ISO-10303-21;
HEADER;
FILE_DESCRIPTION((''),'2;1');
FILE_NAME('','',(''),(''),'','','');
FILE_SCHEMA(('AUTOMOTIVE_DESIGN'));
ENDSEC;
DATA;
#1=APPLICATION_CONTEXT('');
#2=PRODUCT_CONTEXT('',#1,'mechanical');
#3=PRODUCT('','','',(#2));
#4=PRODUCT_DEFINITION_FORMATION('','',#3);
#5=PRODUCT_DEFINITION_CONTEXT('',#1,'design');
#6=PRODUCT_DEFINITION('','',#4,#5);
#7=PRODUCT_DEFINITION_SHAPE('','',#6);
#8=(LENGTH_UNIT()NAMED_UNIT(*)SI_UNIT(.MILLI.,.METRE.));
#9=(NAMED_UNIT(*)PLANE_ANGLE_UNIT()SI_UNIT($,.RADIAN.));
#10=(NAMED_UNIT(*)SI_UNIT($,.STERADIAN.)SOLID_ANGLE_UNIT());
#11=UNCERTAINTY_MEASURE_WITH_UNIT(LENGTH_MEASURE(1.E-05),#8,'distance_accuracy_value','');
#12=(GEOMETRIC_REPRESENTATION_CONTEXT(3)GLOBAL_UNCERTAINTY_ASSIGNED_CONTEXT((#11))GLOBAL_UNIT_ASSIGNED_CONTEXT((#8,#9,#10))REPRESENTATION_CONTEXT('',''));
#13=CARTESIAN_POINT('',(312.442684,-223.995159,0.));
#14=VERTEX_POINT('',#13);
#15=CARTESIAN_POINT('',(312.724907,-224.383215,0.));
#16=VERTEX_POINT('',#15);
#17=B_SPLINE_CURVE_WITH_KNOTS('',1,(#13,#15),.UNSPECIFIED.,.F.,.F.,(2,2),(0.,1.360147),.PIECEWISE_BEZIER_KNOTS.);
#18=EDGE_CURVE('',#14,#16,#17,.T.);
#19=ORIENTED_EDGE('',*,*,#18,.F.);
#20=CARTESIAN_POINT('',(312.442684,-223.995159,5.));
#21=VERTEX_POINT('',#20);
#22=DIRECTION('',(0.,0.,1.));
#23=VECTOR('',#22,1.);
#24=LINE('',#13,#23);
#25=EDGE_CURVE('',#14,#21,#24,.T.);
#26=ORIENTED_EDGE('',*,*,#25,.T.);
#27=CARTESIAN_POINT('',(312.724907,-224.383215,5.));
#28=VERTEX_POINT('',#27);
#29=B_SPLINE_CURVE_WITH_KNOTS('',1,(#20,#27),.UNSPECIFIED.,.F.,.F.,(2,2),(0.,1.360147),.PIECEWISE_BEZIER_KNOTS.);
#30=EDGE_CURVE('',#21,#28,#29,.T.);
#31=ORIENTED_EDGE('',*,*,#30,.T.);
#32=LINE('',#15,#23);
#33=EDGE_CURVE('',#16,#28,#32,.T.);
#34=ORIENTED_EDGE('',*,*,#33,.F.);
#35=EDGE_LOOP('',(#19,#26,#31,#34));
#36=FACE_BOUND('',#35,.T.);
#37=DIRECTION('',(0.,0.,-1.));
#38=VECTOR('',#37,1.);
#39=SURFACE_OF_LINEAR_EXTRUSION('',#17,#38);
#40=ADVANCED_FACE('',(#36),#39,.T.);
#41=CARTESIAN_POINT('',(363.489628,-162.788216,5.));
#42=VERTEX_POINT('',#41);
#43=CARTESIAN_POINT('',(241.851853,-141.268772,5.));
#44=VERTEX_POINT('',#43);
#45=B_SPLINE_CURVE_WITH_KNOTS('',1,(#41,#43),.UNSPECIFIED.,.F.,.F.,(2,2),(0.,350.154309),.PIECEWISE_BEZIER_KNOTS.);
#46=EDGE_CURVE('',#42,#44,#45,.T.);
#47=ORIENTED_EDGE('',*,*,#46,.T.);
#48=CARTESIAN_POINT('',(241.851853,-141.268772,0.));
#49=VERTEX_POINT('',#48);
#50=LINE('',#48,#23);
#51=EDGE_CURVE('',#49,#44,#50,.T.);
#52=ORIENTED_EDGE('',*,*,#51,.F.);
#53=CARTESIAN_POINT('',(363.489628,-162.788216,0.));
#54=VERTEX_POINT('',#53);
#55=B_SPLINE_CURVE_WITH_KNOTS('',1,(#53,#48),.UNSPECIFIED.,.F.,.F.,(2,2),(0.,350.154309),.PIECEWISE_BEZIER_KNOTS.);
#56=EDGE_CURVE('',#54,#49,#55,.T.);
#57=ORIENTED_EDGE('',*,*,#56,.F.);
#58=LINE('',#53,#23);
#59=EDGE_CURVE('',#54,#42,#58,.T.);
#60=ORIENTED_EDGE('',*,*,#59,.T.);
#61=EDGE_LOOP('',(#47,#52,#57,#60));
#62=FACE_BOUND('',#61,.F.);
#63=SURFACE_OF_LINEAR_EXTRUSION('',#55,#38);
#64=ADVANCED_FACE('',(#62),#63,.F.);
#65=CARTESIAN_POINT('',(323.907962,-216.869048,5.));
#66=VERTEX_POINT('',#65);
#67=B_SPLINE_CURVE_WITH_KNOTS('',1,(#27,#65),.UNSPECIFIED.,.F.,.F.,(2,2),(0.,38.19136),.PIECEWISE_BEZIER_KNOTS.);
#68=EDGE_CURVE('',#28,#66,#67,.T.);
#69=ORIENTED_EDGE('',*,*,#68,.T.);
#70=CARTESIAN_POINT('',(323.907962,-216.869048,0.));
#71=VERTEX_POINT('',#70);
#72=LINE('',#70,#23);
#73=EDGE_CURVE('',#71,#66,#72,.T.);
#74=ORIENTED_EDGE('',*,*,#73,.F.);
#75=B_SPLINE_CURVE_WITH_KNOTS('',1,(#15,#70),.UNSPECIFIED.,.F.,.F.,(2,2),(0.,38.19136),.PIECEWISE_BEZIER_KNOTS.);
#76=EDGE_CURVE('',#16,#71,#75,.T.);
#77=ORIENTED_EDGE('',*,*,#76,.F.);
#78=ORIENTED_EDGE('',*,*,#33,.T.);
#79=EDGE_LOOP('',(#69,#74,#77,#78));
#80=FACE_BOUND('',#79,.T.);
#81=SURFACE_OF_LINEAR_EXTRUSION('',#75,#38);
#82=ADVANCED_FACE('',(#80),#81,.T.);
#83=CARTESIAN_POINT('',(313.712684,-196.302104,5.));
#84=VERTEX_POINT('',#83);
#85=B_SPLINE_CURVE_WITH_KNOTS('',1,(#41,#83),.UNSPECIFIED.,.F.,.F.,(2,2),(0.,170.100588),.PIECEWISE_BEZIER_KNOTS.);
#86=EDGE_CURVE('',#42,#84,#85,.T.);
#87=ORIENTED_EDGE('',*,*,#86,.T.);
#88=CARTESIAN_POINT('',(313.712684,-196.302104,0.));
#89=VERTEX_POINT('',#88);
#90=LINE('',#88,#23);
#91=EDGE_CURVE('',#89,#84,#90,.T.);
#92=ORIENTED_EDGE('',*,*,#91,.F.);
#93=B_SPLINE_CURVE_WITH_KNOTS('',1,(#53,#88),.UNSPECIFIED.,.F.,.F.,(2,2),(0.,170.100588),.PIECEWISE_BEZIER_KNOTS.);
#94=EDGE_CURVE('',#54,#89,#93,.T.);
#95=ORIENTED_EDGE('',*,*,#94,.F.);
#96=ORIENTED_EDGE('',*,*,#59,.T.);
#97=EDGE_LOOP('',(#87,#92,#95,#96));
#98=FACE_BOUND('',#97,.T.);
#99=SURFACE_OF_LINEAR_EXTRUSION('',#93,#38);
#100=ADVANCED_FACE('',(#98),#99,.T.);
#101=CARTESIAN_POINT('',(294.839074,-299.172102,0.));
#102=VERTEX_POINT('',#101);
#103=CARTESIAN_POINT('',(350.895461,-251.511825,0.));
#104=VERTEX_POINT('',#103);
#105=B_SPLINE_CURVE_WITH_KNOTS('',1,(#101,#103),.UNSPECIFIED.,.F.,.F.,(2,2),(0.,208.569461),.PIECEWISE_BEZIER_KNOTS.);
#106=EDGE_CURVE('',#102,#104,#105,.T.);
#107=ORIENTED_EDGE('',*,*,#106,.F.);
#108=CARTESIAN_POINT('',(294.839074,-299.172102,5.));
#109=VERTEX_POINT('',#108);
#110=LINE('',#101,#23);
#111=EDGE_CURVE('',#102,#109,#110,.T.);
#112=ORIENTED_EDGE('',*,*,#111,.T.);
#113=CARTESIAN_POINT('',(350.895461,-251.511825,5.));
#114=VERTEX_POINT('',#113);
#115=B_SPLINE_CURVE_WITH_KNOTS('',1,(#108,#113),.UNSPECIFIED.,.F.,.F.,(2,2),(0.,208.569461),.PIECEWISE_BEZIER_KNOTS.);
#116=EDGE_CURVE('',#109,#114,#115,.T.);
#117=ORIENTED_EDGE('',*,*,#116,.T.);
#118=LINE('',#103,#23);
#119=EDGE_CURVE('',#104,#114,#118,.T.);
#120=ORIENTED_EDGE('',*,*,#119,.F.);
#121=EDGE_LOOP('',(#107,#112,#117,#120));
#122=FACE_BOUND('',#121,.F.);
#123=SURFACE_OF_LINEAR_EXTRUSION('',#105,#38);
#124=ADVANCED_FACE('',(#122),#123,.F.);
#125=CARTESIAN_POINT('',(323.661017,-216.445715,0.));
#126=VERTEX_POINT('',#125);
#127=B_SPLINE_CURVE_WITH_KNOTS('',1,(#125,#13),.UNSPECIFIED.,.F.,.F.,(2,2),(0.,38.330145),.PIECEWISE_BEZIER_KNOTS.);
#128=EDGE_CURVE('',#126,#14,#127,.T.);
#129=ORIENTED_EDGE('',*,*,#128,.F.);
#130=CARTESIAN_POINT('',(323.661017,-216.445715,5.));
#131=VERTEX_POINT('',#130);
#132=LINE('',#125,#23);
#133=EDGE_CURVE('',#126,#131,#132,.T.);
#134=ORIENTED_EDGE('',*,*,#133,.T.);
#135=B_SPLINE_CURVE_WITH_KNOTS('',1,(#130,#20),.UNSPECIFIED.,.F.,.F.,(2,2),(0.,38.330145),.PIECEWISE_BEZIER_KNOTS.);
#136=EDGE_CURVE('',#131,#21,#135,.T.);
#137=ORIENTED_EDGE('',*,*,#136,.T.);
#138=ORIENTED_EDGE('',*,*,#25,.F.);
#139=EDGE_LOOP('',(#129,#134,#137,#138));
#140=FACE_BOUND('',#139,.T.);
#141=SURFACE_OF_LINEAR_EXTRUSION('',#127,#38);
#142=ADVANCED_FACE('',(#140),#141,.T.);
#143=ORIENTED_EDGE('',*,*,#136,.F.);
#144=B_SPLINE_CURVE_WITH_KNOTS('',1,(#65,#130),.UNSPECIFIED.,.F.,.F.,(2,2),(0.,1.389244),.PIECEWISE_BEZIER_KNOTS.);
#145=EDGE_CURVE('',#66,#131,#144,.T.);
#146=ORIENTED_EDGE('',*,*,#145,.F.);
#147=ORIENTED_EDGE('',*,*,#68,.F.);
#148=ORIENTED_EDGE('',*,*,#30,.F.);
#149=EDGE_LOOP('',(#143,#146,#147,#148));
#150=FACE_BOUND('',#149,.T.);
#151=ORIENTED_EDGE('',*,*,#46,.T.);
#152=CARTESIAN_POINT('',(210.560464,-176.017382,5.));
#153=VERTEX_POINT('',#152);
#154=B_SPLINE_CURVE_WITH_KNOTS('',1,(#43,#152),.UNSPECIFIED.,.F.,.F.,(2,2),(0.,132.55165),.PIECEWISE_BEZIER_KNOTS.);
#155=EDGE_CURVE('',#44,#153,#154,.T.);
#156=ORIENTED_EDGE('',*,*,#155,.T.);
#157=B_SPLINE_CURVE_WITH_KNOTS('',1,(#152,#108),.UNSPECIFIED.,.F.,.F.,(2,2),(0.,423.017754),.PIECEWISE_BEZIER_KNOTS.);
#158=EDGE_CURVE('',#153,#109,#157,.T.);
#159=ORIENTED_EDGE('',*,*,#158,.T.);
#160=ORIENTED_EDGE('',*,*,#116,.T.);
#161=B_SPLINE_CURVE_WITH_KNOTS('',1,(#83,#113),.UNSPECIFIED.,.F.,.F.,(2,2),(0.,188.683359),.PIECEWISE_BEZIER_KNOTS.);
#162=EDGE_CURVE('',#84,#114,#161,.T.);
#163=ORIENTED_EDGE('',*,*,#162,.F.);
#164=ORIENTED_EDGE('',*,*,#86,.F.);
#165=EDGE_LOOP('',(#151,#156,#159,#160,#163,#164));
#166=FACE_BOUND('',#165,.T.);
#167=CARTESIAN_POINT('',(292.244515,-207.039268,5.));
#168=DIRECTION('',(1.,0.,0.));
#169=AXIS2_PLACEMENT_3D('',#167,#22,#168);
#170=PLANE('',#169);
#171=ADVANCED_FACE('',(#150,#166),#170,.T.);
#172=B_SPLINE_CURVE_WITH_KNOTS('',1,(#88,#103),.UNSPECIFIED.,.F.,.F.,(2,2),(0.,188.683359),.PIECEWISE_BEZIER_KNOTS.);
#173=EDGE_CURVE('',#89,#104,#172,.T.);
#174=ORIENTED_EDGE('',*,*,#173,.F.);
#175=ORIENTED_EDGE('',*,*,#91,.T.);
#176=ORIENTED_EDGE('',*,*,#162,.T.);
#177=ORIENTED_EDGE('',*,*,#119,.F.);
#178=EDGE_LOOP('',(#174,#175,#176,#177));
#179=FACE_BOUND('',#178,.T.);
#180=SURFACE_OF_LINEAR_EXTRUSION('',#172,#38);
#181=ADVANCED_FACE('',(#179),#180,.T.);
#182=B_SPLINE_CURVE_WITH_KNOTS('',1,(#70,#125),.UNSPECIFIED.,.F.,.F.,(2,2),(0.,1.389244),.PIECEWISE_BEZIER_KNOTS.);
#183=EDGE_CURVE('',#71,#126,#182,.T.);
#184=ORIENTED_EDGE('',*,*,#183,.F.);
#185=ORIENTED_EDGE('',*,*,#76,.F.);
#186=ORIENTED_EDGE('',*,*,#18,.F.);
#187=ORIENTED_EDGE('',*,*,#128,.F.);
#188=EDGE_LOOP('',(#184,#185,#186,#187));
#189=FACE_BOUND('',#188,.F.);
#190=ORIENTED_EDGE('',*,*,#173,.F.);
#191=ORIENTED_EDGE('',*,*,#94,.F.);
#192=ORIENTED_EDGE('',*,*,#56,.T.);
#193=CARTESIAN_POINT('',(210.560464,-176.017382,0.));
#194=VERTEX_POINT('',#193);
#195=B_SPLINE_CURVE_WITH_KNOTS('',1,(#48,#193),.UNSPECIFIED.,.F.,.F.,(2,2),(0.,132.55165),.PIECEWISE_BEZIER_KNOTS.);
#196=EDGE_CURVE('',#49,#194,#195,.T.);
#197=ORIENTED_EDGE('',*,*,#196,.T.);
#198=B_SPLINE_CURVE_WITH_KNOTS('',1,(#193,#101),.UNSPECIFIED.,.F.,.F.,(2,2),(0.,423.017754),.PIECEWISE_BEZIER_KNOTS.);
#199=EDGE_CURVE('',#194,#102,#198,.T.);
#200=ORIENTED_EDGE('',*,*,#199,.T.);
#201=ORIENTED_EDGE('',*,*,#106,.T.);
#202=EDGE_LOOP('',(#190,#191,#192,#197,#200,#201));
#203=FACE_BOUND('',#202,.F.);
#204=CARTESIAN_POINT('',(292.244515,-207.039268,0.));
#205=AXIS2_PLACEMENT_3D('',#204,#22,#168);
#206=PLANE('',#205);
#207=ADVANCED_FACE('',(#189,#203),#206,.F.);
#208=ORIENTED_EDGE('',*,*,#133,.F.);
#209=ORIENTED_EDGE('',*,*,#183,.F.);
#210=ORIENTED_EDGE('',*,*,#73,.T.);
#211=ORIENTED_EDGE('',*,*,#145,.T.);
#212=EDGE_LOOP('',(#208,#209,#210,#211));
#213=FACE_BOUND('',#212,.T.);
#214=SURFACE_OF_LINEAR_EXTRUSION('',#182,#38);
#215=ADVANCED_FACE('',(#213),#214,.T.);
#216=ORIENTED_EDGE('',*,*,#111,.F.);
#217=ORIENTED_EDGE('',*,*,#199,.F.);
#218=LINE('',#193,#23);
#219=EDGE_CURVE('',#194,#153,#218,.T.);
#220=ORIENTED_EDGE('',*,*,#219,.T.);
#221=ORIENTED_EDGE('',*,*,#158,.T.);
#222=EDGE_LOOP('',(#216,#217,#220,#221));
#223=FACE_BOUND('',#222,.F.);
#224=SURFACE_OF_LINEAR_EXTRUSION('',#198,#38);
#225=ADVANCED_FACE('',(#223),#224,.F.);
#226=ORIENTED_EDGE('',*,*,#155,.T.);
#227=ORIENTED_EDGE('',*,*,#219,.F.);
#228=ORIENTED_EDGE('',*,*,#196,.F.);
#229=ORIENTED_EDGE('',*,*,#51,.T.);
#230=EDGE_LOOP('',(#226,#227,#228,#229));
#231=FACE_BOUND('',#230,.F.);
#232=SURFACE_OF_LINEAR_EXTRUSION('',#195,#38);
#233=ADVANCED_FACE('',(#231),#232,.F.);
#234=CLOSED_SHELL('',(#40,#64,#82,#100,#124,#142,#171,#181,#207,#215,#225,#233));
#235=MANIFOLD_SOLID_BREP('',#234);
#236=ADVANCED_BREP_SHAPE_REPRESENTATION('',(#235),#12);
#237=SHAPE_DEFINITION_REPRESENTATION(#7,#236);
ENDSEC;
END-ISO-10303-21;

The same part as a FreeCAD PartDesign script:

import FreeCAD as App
import Part
import Sketcher

V = App.Vector

doc = App.newDocument("Part")
body = doc.addObject("PartDesign::Body", "Body")

sketch1 = doc.addObject("Sketcher::SketchObject", "Sketch")
body.addObject(sketch1)
sketch1.AttachmentSupport = (doc.XY_Plane, [""])
sketch1.MapMode = "FlatFace"
sketch1.addGeometry(Part.BSplineCurve([V(363.489628, -162.788216, 0), V(241.851853, -141.268772, 0)], [2, 2], [0, 350.154309], False, 1, [1, 1], False), False)
sketch1.addGeometry(Part.BSplineCurve([V(241.851853, -141.268772, 0), V(210.560464, -176.017382, 0)], [2, 2], [0, 132.55165], False, 1, [1, 1], False), False)
sketch1.addGeometry(Part.BSplineCurve([V(210.560464, -176.017382, 0), V(294.839074, -299.172102, 0)], [2, 2], [0, 423.017754], False, 1, [1, 1], False), False)
sketch1.addGeometry(Part.BSplineCurve([V(294.839074, -299.172102, 0), V(350.895461, -251.511825, 0)], [2, 2], [0, 208.569461], False, 1, [1, 1], False), False)
sketch1.addGeometry(Part.BSplineCurve([V(313.712684, -196.302104, 0), V(350.895461, -251.511825, 0)], [2, 2], [0, 188.683359], False, 1, [1, 1], False), False)
sketch1.addGeometry(Part.BSplineCurve([V(363.489628, -162.788216, 0), V(313.712684, -196.302104, 0)], [2, 2], [0, 170.100588], False, 1, [1, 1], False), False)
sketch1.addGeometry(Part.BSplineCurve([V(323.661017, -216.445715, 0), V(312.442684, -223.995159, 0)], [2, 2], [0, 38.330145], False, 1, [1, 1], False), False)
sketch1.addGeometry(Part.BSplineCurve([V(323.907962, -216.869048, 0), V(323.661017, -216.445715, 0)], [2, 2], [0, 1.389244], False, 1, [1, 1], False), False)
sketch1.addGeometry(Part.BSplineCurve([V(312.724907, -224.383215, 0), V(323.907962, -216.869048, 0)], [2, 2], [0, 38.19136], False, 1, [1, 1], False), False)
sketch1.addGeometry(Part.BSplineCurve([V(312.442684, -223.995159, 0), V(312.724907, -224.383215, 0)], [2, 2], [0, 1.360147], False, 1, [1, 1], False), False)
sketch1.addConstraint(Sketcher.Constraint("Block", 0))
sketch1.addConstraint(Sketcher.Constraint("Block", 1))
sketch1.addConstraint(Sketcher.Constraint("Block", 2))
sketch1.addConstraint(Sketcher.Constraint("Block", 3))
sketch1.addConstraint(Sketcher.Constraint("Block", 4))
sketch1.addConstraint(Sketcher.Constraint("Block", 5))
sketch1.addConstraint(Sketcher.Constraint("Block", 6))
sketch1.addConstraint(Sketcher.Constraint("Block", 7))
sketch1.addConstraint(Sketcher.Constraint("Block", 8))
sketch1.addConstraint(Sketcher.Constraint("Block", 9))
pad1 = doc.addObject("PartDesign::Pad", "Pad")
body.addObject(pad1)
pad1.Profile = sketch1
pad1.Length = 5

doc.recompute()
